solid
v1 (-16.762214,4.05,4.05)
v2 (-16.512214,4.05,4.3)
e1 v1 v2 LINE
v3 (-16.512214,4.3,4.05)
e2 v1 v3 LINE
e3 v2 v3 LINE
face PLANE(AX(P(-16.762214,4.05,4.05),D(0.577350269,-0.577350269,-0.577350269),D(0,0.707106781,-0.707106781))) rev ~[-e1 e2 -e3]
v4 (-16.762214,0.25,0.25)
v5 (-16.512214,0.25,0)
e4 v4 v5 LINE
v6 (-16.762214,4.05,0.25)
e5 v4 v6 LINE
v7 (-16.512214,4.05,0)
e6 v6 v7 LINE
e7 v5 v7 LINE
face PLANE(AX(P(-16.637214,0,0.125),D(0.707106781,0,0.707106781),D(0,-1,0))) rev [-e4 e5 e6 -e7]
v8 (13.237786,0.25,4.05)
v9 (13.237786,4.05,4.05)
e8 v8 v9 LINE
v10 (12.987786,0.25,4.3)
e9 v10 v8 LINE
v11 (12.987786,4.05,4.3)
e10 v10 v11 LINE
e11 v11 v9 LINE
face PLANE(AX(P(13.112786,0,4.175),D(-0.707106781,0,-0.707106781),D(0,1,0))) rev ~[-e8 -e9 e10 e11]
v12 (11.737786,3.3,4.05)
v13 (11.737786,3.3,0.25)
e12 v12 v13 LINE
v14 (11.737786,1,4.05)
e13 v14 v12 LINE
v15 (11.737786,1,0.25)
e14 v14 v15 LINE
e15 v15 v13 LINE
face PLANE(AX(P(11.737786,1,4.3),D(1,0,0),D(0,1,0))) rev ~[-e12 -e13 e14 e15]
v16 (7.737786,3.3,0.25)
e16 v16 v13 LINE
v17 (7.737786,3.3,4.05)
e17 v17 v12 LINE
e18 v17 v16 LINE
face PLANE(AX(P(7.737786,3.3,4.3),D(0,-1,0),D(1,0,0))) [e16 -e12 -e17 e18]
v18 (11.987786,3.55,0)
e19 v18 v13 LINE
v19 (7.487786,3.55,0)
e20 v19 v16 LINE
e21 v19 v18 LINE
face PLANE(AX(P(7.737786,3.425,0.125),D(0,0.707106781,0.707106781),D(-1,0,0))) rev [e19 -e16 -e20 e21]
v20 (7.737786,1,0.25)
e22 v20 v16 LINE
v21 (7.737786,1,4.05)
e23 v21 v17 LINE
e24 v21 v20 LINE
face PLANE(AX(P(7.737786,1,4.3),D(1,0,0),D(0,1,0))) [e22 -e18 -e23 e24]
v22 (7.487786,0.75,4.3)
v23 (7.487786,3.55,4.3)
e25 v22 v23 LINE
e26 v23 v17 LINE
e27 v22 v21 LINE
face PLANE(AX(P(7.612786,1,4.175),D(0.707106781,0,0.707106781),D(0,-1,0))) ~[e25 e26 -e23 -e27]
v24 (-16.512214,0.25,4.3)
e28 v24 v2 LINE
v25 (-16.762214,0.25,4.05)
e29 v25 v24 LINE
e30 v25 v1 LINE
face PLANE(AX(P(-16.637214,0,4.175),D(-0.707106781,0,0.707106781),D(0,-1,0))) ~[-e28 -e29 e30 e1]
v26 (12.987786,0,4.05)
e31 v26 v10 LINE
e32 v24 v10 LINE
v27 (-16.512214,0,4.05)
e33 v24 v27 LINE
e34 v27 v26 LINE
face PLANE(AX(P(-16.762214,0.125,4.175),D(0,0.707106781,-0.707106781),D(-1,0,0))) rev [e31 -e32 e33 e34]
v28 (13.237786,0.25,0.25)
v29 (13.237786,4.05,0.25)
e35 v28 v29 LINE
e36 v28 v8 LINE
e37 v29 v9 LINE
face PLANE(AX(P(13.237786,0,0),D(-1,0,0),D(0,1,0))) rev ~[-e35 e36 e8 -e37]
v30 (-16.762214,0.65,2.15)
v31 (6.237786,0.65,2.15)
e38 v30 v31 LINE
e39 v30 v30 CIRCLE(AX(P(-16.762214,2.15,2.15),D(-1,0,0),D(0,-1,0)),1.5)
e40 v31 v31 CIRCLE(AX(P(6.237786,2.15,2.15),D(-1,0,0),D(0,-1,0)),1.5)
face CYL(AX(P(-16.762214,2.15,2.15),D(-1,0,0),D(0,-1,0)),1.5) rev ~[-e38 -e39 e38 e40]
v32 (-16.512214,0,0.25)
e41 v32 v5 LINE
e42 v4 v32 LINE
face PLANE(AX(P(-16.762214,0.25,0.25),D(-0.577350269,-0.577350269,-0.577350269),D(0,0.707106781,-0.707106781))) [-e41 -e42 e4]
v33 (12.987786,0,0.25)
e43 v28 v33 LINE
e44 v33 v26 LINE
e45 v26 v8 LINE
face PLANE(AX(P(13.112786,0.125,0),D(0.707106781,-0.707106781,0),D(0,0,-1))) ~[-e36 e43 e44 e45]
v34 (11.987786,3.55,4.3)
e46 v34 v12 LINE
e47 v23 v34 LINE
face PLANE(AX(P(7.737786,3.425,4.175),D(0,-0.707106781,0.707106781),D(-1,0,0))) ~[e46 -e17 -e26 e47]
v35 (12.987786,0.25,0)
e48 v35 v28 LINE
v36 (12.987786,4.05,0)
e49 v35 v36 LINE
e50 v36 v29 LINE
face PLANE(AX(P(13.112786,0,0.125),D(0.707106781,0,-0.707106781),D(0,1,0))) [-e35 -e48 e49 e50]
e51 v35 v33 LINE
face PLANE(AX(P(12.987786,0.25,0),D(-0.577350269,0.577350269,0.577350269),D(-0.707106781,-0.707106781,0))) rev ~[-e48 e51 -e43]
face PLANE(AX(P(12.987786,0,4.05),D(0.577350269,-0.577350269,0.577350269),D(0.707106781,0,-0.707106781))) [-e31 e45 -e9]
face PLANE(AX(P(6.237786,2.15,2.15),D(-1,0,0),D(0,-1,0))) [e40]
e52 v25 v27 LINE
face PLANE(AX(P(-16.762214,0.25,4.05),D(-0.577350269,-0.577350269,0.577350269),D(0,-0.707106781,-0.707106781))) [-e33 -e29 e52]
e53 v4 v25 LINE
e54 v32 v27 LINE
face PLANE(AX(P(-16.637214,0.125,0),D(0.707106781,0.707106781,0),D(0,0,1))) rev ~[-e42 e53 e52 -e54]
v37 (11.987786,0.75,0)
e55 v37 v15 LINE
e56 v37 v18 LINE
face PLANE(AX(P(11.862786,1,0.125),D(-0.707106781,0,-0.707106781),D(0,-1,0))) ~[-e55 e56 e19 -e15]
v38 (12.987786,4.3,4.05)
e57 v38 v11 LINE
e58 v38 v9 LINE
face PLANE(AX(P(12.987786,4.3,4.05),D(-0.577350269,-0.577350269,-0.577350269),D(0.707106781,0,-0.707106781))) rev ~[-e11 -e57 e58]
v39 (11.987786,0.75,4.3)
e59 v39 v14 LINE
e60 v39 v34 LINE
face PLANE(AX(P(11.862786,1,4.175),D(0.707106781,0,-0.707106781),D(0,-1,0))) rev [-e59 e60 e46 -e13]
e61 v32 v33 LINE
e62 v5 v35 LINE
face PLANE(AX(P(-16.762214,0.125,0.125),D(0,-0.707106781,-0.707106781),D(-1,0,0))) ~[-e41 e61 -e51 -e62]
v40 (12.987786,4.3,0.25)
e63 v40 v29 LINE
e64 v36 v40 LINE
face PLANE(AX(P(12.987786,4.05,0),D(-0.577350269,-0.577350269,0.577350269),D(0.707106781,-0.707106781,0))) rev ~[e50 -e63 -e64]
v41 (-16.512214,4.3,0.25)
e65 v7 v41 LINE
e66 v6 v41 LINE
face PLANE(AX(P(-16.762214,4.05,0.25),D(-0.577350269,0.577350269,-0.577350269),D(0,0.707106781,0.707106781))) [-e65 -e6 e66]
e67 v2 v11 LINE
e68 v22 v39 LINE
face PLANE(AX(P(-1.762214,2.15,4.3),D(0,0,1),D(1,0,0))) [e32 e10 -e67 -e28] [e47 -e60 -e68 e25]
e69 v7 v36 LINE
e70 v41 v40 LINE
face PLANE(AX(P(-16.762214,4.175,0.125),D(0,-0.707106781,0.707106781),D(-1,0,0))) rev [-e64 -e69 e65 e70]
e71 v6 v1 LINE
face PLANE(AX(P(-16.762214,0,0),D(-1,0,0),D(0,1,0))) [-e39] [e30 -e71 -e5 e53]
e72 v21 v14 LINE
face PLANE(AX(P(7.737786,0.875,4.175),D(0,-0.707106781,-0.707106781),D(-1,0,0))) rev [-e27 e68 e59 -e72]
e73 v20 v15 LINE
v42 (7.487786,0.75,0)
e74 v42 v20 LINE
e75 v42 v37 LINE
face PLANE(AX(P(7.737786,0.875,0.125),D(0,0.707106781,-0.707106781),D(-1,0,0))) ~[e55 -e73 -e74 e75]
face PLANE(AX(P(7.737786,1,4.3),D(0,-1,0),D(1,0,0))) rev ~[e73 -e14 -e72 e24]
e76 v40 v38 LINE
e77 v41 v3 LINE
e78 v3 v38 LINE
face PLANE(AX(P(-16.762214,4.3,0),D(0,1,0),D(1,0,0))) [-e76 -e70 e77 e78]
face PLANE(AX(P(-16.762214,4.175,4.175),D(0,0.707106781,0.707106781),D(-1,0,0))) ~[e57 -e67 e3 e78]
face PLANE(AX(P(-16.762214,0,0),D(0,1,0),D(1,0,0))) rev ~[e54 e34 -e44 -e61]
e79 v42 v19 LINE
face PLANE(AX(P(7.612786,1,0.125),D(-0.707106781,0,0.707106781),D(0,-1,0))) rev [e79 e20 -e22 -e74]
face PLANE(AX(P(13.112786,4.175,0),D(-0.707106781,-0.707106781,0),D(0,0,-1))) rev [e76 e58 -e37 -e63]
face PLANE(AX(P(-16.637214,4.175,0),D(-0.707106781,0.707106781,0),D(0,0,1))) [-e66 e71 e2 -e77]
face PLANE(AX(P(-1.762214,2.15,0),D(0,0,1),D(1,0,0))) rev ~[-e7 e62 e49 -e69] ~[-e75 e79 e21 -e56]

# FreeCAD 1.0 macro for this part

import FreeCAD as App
import Part
import Sketcher
from FreeCAD import Vector
Q = App.Units.Quantity


def edges_at(feature, points):
    """Names of the edges that pass closest to the given points."""
    edges = feature.Shape.Edges
    near = lambda p: min(range(len(edges)), key=lambda i: edges[i].distToShape(Part.Vertex(*p))[0])
    return sorted({f"Edge{near(p) + 1}" for p in points})


def add_polygon(sketch, points):
    """Adds a closed chain of lines whose ends are joined by coincident constraints."""
    first, n = sketch.GeometryCount, len(points)
    for a, b in zip(points, points[1:] + points[:1]):
        sketch.addGeometry(Part.LineSegment(App.Vector(*a, 0), App.Vector(*b, 0)), False)
    for i in range(n):
        sketch.addConstraint(Sketcher.Constraint("Coincident", first + i, 2, first + (i + 1) % n, 1))

doc = App.newDocument("Part")
body = doc.addObject("PartDesign::Body", "Body")

sketch1 = doc.addObject("Sketcher::SketchObject", "Sketch")
body.addObject(sketch1)
sketch1.AttachmentSupport = (doc.XY_Plane, [""])
sketch1.MapMode = "FlatFace"
add_polygon(sketch1, [(-16.762214, 4.3), (-16.762214, 0), (13.237786, 0), (13.237786, 4.3)])
sketch1.addConstraint(Sketcher.Constraint("Vertical", 0))
sketch1.addConstraint(Sketcher.Constraint("Horizontal", 1))
sketch1.addConstraint(Sketcher.Constraint("Vertical", 2))
sketch1.addConstraint(Sketcher.Constraint("Horizontal", 3))
sketch1.addConstraint(Sketcher.Constraint("PointOnObject", 0, 2, -1))
sketch1.addConstraint(Sketcher.Constraint("DistanceX", 1, 1, 1, 2, Q("30 mm")))
sketch1.addConstraint(Sketcher.Constraint("DistanceY", 0, 2, 0, 1, Q("4.3 mm")))
sketch1.addConstraint(Sketcher.Constraint("DistanceX", 0, 2, -1, 1, Q("16.762214 mm")))
pad1 = doc.addObject("PartDesign::Pad", "Pad")
body.addObject(pad1)
pad1.Profile = sketch1
pad1.Length = 4.3

sketch2 = doc.addObject("Sketcher::SketchObject", "Sketch001")
body.addObject(sketch2)
sketch2.AttachmentSupport = (doc.XY_Plane, [""])
sketch2.MapMode = "FlatFace"
sketch2.AttachmentOffset = App.Placement(Vector(0, 0, 4.3), App.Rotation())
add_polygon(sketch2, [(7.737786, 3.3), (7.737786, 1), (11.737786, 1), (11.737786, 3.3)])
sketch2.addConstraint(Sketcher.Constraint("Vertical", 0))
sketch2.addConstraint(Sketcher.Constraint("Horizontal", 1))
sketch2.addConstraint(Sketcher.Constraint("Vertical", 2))
sketch2.addConstraint(Sketcher.Constraint("Horizontal", 3))
sketch2.addConstraint(Sketcher.Constraint("DistanceX", 1, 1, 1, 2, Q("4 mm")))
sketch2.addConstraint(Sketcher.Constraint("DistanceY", 0, 2, 0, 1, Q("2.3 mm")))
sketch2.addConstraint(Sketcher.Constraint("DistanceY", -1, 1, 0, 2, Q("1 mm")))
sketch2.addConstraint(Sketcher.Constraint("DistanceX", -1, 1, 0, 2, Q("7.737786 mm")))
pocket1 = doc.addObject("PartDesign::Pocket", "Pocket")
body.addObject(pocket1)
pocket1.Profile = sketch2
pocket1.Type = "ThroughAll"
doc.recompute()

chamfer = doc.addObject("PartDesign::Chamfer", "Chamfer")
body.addObject(chamfer)
chamfer.Base = (pocket1, edges_at(pocket1, [
    (13.238, 2.15, 4.3),
    (-1.762, 0, 4.3),
    (-1.762, 4.3, 4.3),
    (13.238, 0, 2.15),
    (13.238, 4.3, 2.15),
    (-1.762, 4.3, 0),
    (13.238, 2.15, 0),
    (-1.762, 0, 0),
    (9.738, 3.3, 0),
    (7.738, 2.15, 0),
    (9.738, 1, 0),
    (11.738, 2.15, 0),
    (7.738, 2.15, 4.3),
    (11.738, 2.15, 4.3),
    (9.738, 3.3, 4.3),
    (9.738, 1, 4.3),
    (-16.762, 2.15, 4.3),
    (-16.762, 0, 2.15),
    (-16.762, 2.15, 0),
    (-16.762, 4.3, 2.15),
]))
chamfer.Size = 0.25

sketch3 = doc.addObject("Sketcher::SketchObject", "Sketch002")
body.addObject(sketch3)
sketch3.AttachmentSupport = (doc.YZ_Plane, [""])
sketch3.MapMode = "FlatFace"
sketch3.AttachmentOffset = App.Placement(Vector(0, 0, -16.762214), App.Rotation())
sketch3.addGeometry(Part.Circle(Vector(2.15, 2.15, 0), Vector(0, 0, 1), 1.5), False)
sketch3.addConstraint(Sketcher.Constraint("Diameter", 0, Q("3 mm")))
sketch3.addConstraint(Sketcher.Constraint("DistanceX", -1, 1, 0, 3, Q("2.15 mm")))
sketch3.addConstraint(Sketcher.Constraint("DistanceY", -1, 1, 0, 3, Q("2.15 mm")))
pocket2 = doc.addObject("PartDesign::Pocket", "Pocket001")
body.addObject(pocket2)
pocket2.Profile = sketch3
pocket2.Length = 23
pocket2.Reversed = True

doc.recompute()
